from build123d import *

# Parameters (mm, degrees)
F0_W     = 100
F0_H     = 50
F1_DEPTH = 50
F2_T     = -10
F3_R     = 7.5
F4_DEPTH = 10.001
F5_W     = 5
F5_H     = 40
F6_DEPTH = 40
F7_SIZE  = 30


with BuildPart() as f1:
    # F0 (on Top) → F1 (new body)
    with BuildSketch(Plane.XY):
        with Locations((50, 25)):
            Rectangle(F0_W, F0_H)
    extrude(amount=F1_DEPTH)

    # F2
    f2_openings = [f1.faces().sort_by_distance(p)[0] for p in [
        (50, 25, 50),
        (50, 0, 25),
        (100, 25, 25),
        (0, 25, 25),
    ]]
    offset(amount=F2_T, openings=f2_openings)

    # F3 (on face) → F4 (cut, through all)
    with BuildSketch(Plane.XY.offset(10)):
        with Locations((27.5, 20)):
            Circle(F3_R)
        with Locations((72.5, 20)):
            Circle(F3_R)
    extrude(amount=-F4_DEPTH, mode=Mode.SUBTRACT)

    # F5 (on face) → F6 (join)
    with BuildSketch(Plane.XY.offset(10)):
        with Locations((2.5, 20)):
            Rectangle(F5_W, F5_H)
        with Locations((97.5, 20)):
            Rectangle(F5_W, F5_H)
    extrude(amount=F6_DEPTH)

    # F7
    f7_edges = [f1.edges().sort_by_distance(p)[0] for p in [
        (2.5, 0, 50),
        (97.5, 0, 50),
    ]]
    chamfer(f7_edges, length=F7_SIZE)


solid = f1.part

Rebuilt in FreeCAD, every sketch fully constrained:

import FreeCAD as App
import Part
import Sketcher

V = App.Vector


def edges_at(feature, points):
    """Names of the edges that pass closest to the given points."""
    edges = feature.Shape.Edges
    near = lambda p: min(range(len(edges)), key=lambda i: edges[i].distToShape(Part.Vertex(*p))[0])
    return sorted({f"Edge{near(p) + 1}" for p in points})


def faces_at(feature, points):
    """Names of the faces that lie closest to the given points."""
    faces = feature.Shape.Faces
    near = lambda p: min(range(len(faces)), key=lambda i: faces[i].distToShape(Part.Vertex(*p))[0])
    return sorted({f"Face{near(p) + 1}" for p in points})

doc = App.newDocument("Part")
params = doc.addObject("Spreadsheet::Sheet", "Params")
for row, (alias, value) in enumerate([
    ("sketch1_width", "100 mm"),
    ("sketch1_height", "50 mm"),
    ("pad1_length", "50 mm"),
    ("thickness_wall", "10 mm"),
    ("sketch2_diameter", "15 mm"),
    ("sketch3_width", "5 mm"),
    ("sketch3_height", "40 mm"),
    ("pad2_length", "40 mm"),
    ("chamfer_size", "30 mm"),
], start=1):
    params.set(f"A{row}", alias)
    params.set(f"B{row}", "=" + value)
    params.setAlias(f"B{row}", alias)

body = doc.addObject("PartDesign::Body", "Body")

sketch1 = body.newObject("Sketcher::SketchObject", "Sketch")
sketch1.AttachmentSupport = (doc.getObject("XY_Plane"), [""])
sketch1.MapMode = "FlatFace"
sketch1.addGeometry(Part.LineSegment(V(0, 50, 0), V(0, 0, 0)), False)
sketch1.addGeometry(Part.LineSegment(V(0, 0, 0), V(100, 0, 0)), False)
sketch1.addGeometry(Part.LineSegment(V(100, 0, 0), V(100, 50, 0)), False)
sketch1.addGeometry(Part.LineSegment(V(100, 50, 0), V(0, 50, 0)), False)
sketch1.addConstraint(Sketcher.Constraint("Coincident", 0, 2, 1, 1))
sketch1.addConstraint(Sketcher.Constraint("Coincident", 1, 2, 2, 1))
sketch1.addConstraint(Sketcher.Constraint("Coincident", 2, 2, 3, 1))
sketch1.addConstraint(Sketcher.Constraint("Coincident", 3, 2, 0, 1))
sketch1.addConstraint(Sketcher.Constraint("Vertical", 0))
sketch1.addConstraint(Sketcher.Constraint("Horizontal", 1))
sketch1.addConstraint(Sketcher.Constraint("Vertical", 2))
sketch1.addConstraint(Sketcher.Constraint("Horizontal", 3))
sketch1.addConstraint(Sketcher.Constraint("Coincident", 0, 2, -1, 1))
sketch1.addConstraint(Sketcher.Constraint("DistanceX", 1, 1, 1, 2, 100.0))
sketch1.addConstraint(Sketcher.Constraint("DistanceY", 0, 2, 0, 1, 50.0))
sketch1.setExpression("Constraints[9]", "Params.sketch1_width")
sketch1.setExpression("Constraints[10]", "Params.sketch1_height")
pad1 = body.newObject("PartDesign::Pad", "Pad")
pad1.Profile = sketch1
pad1.setExpression("Length", "Params.pad1_length")
doc.recompute()

thickness = body.newObject("PartDesign::Thickness", "Thickness")
thickness.Base = (pad1, faces_at(pad1, [
    (50, 25, 50),
    (50, 0, 25),
    (100, 25, 25),
    (0, 25, 25),
]))
thickness.setExpression("Value", "Params.thickness_wall")
thickness.Reversed = True
thickness.Join = "Arc"

sketch2 = body.newObject("Sketcher::SketchObject", "Sketch001")
sketch2.AttachmentSupport = (doc.getObject("XY_Plane"), [""])
sketch2.MapMode = "FlatFace"
sketch2.AttachmentOffset = App.Placement(V(0, 0, 10), App.Rotation())
sketch2.addGeometry(Part.Circle(V(27.5, 20, 0), V(0, 0, 1), 7.5), False)
sketch2.addGeometry(Part.Circle(V(72.5, 20, 0), V(0, 0, 1), 7.5), False)
sketch2.addConstraint(Sketcher.Constraint("Equal", 0, 1))
sketch2.addConstraint(Sketcher.Constraint("Horizontal", 0, 3, 1, 3))
sketch2.addConstraint(Sketcher.Constraint("Diameter", 0, 15.0))
sketch2.addConstraint(Sketcher.Constraint("DistanceY", -1, 1, 0, 3, 20.0))
sketch2.addConstraint(Sketcher.Constraint("DistanceX", 0, 3, 1, 3, 45.0))
sketch2.addConstraint(Sketcher.Constraint("DistanceX", -1, 1, 0, 3, 27.5))
sketch2.setExpression("Constraints[2]", "Params.sketch2_diameter")
pocket1 = body.newObject("PartDesign::Pocket", "Pocket")
pocket1.Profile = sketch2
pocket1.Type = "ThroughAll"

sketch3 = body.newObject("Sketcher::SketchObject", "Sketch002")
sketch3.AttachmentSupport = (doc.getObject("XY_Plane"), [""])
sketch3.MapMode = "FlatFace"
sketch3.AttachmentOffset = App.Placement(V(0, 0, 10), App.Rotation())
sketch3.addGeometry(Part.LineSegment(V(0, 40, 0), V(0, 0, 0)), False)
sketch3.addGeometry(Part.LineSegment(V(0, 0, 0), V(5, 0, 0)), False)
sketch3.addGeometry(Part.LineSegment(V(5, 0, 0), V(5, 40, 0)), False)
sketch3.addGeometry(Part.LineSegment(V(5, 40, 0), V(0, 40, 0)), False)
sketch3.addGeometry(Part.LineSegment(V(95, 40, 0), V(95, 0, 0)), False)
sketch3.addGeometry(Part.LineSegment(V(95, 0, 0), V(100, 0, 0)), False)
sketch3.addGeometry(Part.LineSegment(V(100, 0, 0), V(100, 40, 0)), False)
sketch3.addGeometry(Part.LineSegment(V(100, 40, 0), V(95, 40, 0)), False)
sketch3.addConstraint(Sketcher.Constraint("Coincident", 0, 2, 1, 1))
sketch3.addConstraint(Sketcher.Constraint("Coincident", 1, 2, 2, 1))
sketch3.addConstraint(Sketcher.Constraint("Coincident", 2, 2, 3, 1))
sketch3.addConstraint(Sketcher.Constraint("Coincident", 3, 2, 0, 1))
sketch3.addConstraint(Sketcher.Constraint("Coincident", 4, 2, 5, 1))
sketch3.addConstraint(Sketcher.Constraint("Coincident", 5, 2, 6, 1))
sketch3.addConstraint(Sketcher.Constraint("Coincident", 6, 2, 7, 1))
sketch3.addConstraint(Sketcher.Constraint("Coincident", 7, 2, 4, 1))
sketch3.addConstraint(Sketcher.Constraint("Vertical", 0))
sketch3.addConstraint(Sketcher.Constraint("Horizontal", 1))
sketch3.addConstraint(Sketcher.Constraint("Vertical", 2))
sketch3.addConstraint(Sketcher.Constraint("Horizontal", 3))
sketch3.addConstraint(Sketcher.Constraint("Vertical", 4))
sketch3.addConstraint(Sketcher.Constraint("Horizontal", 5))
sketch3.addConstraint(Sketcher.Constraint("Vertical", 6))
sketch3.addConstraint(Sketcher.Constraint("Horizontal", 7))
sketch3.addConstraint(Sketcher.Constraint("Coincident", 0, 2, -1, 1))
sketch3.addConstraint(Sketcher.Constraint("PointOnObject", 4, 2, -1))
sketch3.addConstraint(Sketcher.Constraint("Horizontal", 3, 2, 6, 2))
sketch3.addConstraint(Sketcher.Constraint("Equal", 3, 5))
sketch3.addConstraint(Sketcher.Constraint("DistanceX", 1, 1, 1, 2, 5.0))
sketch3.addConstraint(Sketcher.Constraint("DistanceY", 0, 2, 0, 1, 40.0))
sketch3.addConstraint(Sketcher.Constraint("DistanceX", -1, 1, 4, 2, 95.0))
sketch3.setExpression("Constraints[20]", "Params.sketch3_width")
sketch3.setExpression("Constraints[21]", "Params.sketch3_height")
pad2 = body.newObject("PartDesign::Pad", "Pad001")
pad2.Profile = sketch3
pad2.setExpression("Length", "Params.pad2_length")
doc.recompute()

chamfer = body.newObject("PartDesign::Chamfer", "Chamfer")
chamfer.Base = (pad2, edges_at(pad2, [(2.5, 0, 50), (97.5, 0, 50)]))
chamfer.setExpression("Size", "Params.chamfer_size")

doc.recompute()
